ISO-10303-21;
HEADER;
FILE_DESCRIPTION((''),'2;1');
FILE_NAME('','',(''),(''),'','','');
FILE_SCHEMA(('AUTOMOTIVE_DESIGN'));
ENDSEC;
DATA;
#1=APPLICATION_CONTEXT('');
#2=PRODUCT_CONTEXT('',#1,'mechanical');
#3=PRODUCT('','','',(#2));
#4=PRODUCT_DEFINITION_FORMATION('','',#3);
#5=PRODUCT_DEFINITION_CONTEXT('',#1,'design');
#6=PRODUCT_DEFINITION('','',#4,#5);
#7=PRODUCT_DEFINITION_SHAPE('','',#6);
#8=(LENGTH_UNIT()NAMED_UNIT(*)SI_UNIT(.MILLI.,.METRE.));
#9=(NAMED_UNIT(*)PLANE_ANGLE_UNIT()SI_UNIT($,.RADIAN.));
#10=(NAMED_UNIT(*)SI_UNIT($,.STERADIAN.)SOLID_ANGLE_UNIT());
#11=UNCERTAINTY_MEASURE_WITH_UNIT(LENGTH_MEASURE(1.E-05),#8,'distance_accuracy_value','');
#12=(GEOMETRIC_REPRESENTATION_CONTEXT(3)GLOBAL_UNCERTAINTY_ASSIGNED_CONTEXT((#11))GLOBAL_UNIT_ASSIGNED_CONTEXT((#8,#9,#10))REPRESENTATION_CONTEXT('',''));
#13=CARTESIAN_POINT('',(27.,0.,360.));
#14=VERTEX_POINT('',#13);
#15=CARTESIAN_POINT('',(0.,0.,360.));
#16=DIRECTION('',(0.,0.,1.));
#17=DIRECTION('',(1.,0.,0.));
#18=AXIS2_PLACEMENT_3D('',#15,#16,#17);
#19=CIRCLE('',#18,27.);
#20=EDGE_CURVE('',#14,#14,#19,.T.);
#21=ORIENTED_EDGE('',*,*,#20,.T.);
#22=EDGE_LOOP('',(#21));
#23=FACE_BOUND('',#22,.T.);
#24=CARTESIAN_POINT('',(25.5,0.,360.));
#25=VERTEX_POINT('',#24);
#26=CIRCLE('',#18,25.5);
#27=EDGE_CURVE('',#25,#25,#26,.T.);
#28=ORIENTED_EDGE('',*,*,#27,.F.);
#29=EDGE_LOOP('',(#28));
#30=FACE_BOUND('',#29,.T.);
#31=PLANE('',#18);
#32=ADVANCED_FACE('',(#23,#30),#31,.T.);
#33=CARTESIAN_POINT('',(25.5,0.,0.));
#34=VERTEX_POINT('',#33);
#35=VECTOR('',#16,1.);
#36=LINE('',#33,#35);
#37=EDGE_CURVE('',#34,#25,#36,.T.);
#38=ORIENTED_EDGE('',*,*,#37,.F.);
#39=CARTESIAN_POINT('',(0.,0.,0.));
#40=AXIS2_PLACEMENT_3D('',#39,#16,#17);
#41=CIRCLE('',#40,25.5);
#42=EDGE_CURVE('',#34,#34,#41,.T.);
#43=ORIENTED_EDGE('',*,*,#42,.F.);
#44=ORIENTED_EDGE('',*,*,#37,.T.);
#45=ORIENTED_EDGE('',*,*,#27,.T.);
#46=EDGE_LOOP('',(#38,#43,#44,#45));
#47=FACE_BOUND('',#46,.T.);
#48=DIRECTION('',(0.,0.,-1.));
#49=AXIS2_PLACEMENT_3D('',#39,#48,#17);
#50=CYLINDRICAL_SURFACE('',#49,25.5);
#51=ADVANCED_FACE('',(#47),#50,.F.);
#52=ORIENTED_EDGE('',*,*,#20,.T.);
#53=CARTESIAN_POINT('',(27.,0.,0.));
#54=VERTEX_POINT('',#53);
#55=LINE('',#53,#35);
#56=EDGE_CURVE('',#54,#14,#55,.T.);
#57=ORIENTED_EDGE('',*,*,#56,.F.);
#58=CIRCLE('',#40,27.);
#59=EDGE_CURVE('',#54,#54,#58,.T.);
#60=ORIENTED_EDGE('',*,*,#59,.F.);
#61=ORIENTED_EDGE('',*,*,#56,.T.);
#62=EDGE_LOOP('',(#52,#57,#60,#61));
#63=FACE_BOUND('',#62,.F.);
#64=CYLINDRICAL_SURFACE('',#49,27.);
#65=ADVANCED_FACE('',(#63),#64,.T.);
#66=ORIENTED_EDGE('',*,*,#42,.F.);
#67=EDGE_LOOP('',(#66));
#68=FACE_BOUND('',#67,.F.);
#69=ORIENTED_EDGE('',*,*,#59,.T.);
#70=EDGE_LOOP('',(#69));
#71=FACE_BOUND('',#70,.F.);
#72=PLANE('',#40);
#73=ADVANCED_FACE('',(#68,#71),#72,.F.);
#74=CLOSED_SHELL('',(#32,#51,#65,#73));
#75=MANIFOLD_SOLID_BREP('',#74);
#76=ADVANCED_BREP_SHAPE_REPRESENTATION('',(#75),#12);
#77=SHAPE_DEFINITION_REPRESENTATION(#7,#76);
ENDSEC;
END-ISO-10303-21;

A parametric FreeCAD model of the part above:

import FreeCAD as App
import Part
import Sketcher

V = App.Vector

doc = App.newDocument("Part")
body = doc.addObject("PartDesign::Body", "Body")

sketch1 = body.newObject("Sketcher::SketchObject", "Sketch")
sketch1.AttachmentSupport = (doc.getObject("XY_Plane"), [""])
sketch1.MapMode = "FlatFace"
sketch1.addGeometry(Part.Circle(V(0, 0, 0), V(0, 0, 1), 27), False)
sketch1.addGeometry(Part.Circle(V(0, 0, 0), V(0, 0, 1), 26), False)
sketch1.addConstraint(Sketcher.Constraint("Coincident", 0, 3, -1, 1))
sketch1.addConstraint(Sketcher.Constraint("Coincident", 1, 3, -1, 1))
sketch1.addConstraint(Sketcher.Constraint("Diameter", 0, 54.0))
sketch1.addConstraint(Sketcher.Constraint("Diameter", 1, 51.0))
pad1 = body.newObject("PartDesign::Pad", "Pad")
pad1.Profile = sketch1
pad1.Length = 360

doc.recompute()
